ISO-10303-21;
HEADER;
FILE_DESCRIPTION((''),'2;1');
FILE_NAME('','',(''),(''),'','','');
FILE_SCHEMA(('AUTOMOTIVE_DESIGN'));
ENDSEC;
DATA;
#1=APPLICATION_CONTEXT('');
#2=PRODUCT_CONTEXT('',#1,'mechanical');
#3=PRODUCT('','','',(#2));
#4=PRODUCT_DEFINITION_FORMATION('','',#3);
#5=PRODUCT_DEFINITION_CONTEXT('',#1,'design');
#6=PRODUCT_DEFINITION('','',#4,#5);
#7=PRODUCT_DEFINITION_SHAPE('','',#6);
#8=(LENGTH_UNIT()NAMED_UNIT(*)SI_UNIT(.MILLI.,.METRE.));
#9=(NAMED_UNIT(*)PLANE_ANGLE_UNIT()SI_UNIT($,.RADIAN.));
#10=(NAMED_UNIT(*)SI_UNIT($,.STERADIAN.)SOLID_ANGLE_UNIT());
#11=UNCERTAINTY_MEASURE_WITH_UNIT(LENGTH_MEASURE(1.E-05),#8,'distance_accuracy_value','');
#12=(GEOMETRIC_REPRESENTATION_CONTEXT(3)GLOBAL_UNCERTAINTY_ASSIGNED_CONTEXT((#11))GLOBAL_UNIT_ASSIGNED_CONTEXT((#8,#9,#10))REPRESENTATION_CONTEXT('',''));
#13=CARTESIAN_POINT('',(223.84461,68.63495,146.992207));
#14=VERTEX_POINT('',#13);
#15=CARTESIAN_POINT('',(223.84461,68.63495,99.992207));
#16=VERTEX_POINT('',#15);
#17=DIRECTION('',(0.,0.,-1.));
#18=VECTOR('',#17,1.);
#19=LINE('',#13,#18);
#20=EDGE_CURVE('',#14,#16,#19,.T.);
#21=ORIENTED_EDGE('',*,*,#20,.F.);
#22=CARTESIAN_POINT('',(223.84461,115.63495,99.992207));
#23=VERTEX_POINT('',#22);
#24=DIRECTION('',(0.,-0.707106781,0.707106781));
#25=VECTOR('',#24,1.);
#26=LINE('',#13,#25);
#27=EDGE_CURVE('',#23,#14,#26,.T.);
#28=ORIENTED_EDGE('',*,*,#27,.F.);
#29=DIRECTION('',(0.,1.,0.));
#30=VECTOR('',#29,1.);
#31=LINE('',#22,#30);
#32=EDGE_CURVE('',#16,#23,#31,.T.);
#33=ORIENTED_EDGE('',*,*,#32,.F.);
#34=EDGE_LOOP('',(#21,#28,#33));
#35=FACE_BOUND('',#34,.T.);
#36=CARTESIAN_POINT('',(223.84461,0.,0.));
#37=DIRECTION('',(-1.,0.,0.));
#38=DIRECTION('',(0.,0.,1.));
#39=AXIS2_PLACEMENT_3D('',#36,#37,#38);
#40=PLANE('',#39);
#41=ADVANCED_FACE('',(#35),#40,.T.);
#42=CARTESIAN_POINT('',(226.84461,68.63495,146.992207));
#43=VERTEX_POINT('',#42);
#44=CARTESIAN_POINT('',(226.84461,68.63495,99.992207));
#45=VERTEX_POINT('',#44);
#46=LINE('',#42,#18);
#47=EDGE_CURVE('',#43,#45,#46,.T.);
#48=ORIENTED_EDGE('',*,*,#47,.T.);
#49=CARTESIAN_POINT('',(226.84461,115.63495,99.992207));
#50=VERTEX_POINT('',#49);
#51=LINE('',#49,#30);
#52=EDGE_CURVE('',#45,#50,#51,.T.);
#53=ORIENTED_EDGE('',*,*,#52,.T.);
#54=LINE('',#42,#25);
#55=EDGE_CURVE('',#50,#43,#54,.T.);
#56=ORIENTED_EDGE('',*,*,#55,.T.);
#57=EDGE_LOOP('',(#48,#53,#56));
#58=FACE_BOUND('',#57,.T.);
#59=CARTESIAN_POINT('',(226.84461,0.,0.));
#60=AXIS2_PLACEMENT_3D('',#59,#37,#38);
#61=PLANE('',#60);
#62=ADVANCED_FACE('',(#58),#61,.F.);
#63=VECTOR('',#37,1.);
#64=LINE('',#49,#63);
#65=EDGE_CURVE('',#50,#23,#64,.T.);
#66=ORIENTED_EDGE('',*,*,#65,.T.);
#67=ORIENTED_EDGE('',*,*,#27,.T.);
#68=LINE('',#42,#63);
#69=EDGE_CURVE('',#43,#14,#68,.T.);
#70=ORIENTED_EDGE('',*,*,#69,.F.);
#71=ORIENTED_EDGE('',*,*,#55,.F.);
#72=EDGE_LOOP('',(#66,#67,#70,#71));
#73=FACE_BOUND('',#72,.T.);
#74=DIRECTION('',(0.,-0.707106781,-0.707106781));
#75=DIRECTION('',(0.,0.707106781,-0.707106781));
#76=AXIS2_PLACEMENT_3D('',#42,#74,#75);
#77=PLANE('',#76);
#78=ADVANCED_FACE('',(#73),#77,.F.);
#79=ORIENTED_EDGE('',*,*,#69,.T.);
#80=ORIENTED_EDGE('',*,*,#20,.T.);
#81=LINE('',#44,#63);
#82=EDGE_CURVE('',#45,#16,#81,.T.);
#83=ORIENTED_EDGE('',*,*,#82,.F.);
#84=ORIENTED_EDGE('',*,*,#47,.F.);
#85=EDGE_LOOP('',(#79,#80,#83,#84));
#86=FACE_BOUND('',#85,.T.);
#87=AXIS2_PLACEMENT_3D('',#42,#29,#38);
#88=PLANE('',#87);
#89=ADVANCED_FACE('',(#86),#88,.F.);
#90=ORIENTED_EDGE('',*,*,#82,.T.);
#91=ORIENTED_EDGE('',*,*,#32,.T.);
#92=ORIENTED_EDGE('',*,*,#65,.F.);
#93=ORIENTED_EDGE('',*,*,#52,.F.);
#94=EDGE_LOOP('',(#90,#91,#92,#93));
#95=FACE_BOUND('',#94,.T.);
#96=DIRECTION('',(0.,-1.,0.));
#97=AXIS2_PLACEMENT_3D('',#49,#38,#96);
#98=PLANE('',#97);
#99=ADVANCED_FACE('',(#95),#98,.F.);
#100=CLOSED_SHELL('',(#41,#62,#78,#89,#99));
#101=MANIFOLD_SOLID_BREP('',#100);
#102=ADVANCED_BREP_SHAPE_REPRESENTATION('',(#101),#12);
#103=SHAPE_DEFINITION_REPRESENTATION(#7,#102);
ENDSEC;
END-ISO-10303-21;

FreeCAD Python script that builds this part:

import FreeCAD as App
import Part
import Sketcher
Q = App.Units.Quantity


def add_polygon(sketch, points):
    """Adds a closed chain of lines whose ends are joined by coincident constraints."""
    first, n = sketch.GeometryCount, len(points)
    for a, b in zip(points, points[1:] + points[:1]):
        sketch.addGeometry(Part.LineSegment(App.Vector(*a, 0), App.Vector(*b, 0)), False)
    for i in range(n):
        sketch.addConstraint(Sketcher.Constraint("Coincident", first + i, 2, first + (i + 1) % n, 1))

doc = App.newDocument("Part")
params = doc.addObject("Spreadsheet::Sheet", "Params")
for row, (alias, value) in enumerate([
    ("sketch1_width", "47 mm"),
    ("pad1_length", "3 mm"),
], start=1):
    params.set(f"A{row}", alias)
    params.set(f"B{row}", "=" + value)
    params.setAlias(f"B{row}", alias)

body = doc.addObject("PartDesign::Body", "Body")

# Sketch on YZ plane
sketch1 = body.newObject("Sketcher::SketchObject", "Sketch")
sketch1.AttachmentSupport = (doc.getObject("YZ_Plane"), [""])
sketch1.MapMode = "FlatFace"
sketch1.AttachmentOffset = App.Placement(App.Vector(0, 0, 223.84461), App.Rotation())
add_polygon(sketch1, [(69, 100), (116, 100), (69, 147)])  # lines 0-2
sketch1.addConstraint([
    Sketcher.Constraint("Horizontal", 0),
    Sketcher.Constraint("Vertical", 2),
    Sketcher.Constraint("Equal", 0, 2),
    Sketcher.Constraint("DistanceX", 0, 1, 0, 2, Q("47 mm")),
    Sketcher.Constraint("DistanceX", -1, 1, 0, 2, Q("115.63495 mm")),
    Sketcher.Constraint("DistanceY", -1, 1, 0, 2, Q("99.992207 mm")),
])
sketch1.setExpression("Constraints[6]", "Params.sketch1_width")
pad1 = body.newObject("PartDesign::Pad", "Pad")
pad1.Profile = sketch1
pad1.setExpression("Length", "Params.pad1_length")

doc.recompute()
